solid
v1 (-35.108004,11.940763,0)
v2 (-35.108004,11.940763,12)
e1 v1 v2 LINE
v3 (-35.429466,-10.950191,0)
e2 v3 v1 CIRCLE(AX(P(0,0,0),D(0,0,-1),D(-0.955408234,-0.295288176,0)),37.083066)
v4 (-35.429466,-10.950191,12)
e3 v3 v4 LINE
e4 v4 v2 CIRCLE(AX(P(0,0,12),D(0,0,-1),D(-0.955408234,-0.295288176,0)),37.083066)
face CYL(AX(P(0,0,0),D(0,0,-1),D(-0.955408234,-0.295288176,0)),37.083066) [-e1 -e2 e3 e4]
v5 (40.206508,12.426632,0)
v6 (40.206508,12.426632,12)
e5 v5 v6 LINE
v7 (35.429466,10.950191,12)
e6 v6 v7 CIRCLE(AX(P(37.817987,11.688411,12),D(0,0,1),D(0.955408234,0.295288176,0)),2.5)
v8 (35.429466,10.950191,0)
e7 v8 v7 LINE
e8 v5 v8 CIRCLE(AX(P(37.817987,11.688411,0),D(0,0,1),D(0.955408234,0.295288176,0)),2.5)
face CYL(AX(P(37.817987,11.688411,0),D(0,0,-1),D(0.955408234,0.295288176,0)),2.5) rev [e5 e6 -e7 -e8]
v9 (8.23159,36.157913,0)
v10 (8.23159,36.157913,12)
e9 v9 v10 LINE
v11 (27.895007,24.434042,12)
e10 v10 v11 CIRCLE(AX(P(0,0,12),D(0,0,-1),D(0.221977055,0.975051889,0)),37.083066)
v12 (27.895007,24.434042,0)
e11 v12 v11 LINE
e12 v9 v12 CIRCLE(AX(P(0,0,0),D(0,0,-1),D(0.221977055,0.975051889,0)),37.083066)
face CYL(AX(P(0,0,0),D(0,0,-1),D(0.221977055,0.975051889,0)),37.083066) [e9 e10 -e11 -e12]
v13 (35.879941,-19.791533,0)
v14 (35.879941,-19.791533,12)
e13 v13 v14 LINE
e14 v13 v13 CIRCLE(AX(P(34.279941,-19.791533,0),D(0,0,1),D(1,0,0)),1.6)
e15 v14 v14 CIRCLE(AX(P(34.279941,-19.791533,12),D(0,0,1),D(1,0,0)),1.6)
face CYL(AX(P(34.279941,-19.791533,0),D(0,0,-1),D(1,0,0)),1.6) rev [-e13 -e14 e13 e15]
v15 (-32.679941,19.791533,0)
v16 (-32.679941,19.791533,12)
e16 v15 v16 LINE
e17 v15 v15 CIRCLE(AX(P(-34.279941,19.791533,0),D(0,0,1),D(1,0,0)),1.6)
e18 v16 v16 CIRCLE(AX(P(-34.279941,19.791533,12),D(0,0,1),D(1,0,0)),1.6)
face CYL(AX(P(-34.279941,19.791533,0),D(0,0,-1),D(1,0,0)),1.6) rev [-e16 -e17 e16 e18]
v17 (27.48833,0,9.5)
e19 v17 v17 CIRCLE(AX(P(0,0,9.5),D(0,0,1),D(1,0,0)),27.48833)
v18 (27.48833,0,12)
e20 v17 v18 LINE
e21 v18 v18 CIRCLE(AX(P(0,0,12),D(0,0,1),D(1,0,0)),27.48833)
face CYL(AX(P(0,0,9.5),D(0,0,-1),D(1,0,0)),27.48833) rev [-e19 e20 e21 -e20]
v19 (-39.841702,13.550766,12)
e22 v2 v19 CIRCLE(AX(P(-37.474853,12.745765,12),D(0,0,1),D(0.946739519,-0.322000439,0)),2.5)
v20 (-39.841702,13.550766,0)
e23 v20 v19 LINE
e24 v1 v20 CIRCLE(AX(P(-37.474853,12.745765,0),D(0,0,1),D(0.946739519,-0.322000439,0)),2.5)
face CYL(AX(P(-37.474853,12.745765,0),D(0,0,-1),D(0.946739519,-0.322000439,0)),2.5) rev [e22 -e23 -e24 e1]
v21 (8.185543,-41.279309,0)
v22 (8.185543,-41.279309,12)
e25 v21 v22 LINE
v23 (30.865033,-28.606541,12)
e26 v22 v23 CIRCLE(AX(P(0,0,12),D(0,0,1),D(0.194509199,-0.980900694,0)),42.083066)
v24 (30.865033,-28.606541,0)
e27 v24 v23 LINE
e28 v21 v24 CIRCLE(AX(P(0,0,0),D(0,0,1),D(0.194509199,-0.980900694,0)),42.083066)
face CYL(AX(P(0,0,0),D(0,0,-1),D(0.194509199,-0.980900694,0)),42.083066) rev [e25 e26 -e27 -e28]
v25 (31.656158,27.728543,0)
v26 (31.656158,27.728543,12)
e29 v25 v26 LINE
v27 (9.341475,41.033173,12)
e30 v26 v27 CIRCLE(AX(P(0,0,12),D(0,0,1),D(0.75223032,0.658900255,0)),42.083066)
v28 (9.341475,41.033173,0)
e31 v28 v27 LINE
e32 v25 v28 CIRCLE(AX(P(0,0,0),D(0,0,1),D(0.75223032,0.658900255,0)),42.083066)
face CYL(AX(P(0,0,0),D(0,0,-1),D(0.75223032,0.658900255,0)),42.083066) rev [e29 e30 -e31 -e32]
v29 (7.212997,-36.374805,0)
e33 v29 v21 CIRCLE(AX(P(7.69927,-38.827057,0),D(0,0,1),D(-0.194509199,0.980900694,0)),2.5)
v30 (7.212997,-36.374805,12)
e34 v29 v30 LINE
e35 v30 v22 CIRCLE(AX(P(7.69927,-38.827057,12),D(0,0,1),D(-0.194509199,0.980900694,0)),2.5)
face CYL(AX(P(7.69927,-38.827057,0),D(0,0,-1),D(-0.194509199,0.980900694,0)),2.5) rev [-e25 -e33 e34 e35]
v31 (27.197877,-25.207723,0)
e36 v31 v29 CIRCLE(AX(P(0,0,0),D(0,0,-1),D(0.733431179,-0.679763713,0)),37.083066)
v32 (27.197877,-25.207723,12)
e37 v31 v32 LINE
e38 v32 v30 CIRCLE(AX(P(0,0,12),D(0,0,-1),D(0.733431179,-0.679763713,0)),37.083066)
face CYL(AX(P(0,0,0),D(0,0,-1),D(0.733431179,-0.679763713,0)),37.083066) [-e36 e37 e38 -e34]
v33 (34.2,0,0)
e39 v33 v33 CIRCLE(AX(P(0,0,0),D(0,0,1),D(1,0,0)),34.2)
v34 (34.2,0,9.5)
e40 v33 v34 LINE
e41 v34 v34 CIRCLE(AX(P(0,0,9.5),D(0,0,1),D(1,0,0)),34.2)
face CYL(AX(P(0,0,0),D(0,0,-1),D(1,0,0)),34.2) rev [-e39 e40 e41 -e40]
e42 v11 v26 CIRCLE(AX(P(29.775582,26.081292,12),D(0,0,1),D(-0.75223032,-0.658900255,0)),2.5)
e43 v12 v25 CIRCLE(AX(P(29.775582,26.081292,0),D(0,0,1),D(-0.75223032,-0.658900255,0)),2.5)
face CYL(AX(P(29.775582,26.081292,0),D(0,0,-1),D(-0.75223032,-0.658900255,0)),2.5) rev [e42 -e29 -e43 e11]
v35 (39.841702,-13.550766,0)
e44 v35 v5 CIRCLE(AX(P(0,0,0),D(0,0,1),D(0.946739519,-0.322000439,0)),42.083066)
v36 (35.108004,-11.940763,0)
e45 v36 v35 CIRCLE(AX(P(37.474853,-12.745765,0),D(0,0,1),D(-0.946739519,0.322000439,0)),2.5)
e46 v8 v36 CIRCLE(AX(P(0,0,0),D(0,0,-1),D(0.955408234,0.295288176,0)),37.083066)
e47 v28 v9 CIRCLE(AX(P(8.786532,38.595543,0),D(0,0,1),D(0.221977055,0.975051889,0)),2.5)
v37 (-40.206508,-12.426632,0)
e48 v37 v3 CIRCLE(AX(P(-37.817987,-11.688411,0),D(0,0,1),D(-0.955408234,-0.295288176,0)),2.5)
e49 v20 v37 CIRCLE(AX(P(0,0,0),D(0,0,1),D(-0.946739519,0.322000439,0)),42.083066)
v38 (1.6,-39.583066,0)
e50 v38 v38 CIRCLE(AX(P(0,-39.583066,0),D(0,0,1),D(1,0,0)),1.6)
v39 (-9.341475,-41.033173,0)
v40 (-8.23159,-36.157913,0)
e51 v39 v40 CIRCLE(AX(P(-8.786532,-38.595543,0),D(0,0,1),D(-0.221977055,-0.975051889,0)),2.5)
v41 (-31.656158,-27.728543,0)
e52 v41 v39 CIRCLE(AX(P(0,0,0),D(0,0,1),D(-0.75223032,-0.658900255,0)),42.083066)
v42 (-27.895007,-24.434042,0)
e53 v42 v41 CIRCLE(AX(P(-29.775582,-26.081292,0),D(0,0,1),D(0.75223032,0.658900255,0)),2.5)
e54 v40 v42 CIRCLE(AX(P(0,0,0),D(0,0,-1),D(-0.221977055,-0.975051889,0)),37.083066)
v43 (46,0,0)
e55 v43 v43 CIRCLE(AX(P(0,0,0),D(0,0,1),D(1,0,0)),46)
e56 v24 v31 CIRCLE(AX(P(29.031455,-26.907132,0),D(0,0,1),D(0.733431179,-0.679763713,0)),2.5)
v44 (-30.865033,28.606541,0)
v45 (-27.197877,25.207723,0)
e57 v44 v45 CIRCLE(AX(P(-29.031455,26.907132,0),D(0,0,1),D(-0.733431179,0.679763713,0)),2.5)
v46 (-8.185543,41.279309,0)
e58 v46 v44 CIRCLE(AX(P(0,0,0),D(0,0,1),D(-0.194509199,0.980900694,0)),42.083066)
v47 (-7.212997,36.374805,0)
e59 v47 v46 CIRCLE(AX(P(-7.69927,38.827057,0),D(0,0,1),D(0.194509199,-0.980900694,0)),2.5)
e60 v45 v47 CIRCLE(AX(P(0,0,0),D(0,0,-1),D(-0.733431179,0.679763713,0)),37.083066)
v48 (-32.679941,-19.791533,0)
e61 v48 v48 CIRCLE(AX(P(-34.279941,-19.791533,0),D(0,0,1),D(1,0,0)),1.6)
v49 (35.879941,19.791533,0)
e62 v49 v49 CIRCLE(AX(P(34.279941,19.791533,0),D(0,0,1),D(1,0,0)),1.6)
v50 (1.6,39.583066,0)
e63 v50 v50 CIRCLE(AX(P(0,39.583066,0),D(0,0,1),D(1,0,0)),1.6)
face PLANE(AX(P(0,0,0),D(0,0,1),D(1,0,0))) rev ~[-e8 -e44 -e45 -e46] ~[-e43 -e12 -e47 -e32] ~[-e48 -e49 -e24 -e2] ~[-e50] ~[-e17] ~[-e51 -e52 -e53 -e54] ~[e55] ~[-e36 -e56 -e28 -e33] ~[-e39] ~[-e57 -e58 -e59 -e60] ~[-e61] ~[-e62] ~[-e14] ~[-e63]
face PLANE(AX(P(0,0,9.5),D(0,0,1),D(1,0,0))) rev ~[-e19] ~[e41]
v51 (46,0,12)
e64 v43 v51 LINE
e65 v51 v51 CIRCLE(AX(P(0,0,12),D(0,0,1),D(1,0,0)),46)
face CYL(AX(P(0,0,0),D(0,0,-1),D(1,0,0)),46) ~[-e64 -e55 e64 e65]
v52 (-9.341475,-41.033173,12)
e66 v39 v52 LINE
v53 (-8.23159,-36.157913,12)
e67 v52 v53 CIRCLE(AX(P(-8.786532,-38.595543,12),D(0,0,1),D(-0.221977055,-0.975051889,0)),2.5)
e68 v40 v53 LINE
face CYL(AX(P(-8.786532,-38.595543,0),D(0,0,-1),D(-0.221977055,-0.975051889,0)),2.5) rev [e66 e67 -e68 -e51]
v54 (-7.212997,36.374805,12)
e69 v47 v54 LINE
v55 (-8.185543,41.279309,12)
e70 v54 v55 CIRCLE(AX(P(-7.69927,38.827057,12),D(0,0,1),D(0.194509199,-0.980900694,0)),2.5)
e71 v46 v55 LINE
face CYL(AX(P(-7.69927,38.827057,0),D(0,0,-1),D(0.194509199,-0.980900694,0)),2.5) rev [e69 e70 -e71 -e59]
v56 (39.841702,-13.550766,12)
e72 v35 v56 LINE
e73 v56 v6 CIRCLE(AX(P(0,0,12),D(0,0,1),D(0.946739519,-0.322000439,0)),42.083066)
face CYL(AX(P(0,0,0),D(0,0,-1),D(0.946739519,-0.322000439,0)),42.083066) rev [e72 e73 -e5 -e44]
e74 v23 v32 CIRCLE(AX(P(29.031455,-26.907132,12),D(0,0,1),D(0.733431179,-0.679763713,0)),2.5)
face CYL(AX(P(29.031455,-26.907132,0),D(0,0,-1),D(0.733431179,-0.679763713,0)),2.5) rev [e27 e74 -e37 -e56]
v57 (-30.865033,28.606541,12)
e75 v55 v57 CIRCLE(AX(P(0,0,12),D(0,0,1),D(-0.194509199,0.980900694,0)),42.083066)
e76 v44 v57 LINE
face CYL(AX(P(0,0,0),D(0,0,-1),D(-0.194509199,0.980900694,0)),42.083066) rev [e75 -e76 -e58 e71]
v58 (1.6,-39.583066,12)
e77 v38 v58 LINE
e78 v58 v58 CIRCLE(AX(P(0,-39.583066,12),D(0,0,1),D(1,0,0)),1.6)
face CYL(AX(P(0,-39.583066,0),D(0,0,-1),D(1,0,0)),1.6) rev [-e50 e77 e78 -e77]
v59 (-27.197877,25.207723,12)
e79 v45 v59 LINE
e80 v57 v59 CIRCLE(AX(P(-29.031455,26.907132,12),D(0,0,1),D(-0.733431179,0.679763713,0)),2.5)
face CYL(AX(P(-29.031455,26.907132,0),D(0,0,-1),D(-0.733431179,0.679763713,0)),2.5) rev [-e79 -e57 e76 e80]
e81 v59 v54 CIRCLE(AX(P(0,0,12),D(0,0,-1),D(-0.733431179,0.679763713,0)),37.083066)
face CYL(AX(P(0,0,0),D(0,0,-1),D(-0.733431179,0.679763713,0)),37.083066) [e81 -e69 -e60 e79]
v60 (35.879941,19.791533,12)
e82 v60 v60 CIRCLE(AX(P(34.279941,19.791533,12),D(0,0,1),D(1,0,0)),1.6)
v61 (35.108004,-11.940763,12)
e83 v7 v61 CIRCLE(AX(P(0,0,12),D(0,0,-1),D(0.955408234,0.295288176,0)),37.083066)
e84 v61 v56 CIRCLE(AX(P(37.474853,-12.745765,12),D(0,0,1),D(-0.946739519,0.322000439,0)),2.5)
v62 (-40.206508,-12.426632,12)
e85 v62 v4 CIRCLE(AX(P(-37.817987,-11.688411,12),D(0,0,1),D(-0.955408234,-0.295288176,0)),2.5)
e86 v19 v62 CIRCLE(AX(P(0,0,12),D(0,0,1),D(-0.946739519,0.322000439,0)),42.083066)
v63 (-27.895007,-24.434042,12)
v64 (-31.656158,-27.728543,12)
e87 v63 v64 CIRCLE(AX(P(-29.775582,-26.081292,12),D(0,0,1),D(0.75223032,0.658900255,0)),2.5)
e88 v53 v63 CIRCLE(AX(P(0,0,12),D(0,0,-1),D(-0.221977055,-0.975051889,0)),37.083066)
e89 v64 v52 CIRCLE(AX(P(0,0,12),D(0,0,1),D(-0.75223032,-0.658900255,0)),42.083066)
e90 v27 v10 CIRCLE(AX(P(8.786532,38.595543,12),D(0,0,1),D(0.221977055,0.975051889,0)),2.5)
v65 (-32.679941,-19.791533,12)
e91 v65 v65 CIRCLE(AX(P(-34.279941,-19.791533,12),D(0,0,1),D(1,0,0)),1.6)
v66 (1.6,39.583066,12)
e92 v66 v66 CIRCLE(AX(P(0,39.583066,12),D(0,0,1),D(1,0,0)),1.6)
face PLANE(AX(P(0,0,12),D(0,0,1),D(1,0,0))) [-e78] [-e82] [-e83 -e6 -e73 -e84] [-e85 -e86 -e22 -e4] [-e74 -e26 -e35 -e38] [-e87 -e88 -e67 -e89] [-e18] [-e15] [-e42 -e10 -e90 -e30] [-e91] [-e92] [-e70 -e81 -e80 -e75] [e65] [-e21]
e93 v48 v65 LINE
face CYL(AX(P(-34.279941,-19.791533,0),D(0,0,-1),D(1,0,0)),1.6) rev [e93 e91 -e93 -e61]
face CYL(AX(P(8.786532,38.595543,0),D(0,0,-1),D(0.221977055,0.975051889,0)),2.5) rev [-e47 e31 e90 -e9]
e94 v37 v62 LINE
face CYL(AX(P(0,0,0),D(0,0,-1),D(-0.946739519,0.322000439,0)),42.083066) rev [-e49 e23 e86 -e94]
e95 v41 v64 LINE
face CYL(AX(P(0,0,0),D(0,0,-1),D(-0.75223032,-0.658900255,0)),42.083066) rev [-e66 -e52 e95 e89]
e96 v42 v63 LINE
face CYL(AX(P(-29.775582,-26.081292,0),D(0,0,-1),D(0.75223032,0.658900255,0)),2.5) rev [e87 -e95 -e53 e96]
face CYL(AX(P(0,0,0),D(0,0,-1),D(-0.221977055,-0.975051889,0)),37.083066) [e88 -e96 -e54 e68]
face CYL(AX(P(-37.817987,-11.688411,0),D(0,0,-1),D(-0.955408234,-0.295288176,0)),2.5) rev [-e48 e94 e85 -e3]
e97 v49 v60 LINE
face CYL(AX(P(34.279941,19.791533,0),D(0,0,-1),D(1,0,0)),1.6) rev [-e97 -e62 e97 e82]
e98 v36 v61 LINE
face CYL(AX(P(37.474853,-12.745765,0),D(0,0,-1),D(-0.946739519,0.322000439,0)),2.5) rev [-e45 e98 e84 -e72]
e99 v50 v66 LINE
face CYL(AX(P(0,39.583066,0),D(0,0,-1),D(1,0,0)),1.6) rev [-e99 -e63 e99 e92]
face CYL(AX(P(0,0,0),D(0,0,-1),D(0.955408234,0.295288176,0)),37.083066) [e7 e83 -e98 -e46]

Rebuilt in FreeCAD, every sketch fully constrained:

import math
import FreeCAD as App
import Part
import Sketcher

doc = App.newDocument("Part")
body = doc.addObject("PartDesign::Body", "Body")

# Sketch on XY plane
sketch1 = body.newObject("Sketcher::SketchObject", "Sketch")
sketch1.AttachmentSupport = (doc.getObject("XY_Plane"), [""])
sketch1.MapMode = "FlatFace"
sketch1.addGeometry([
    Part.Circle(App.Vector(0, 0, 0), App.Vector(0, 0, 1), 46),  # 0
    Part.ArcOfCircle(Part.Circle(App.Vector(0, 0, 0), App.Vector(0, 0, 1), 42.083066), math.radians(-138.783946), math.radians(-102.825182)),  # 1
    Part.ArcOfCircle(Part.Circle(App.Vector(-29.775582, -26.081292, 0), App.Vector(0, 0, 1), 2.5), math.radians(41.216054), math.radians(221.216054)),  # 2
    Part.ArcOfCircle(Part.Circle(App.Vector(0, 0, 0), App.Vector(0, 0, 1), 37.083066), math.radians(-138.783946), math.radians(-102.825182)),  # 3
    Part.ArcOfCircle(Part.Circle(App.Vector(-8.786532, -38.595543, 0), App.Vector(0, 0, 1), 2.5), math.radians(-102.825182), math.radians(77.174818)),  # 4
    Part.Circle(App.Vector(0, -39.583066, 0), App.Vector(0, 0, 1), 1.6),  # 5
    Part.Circle(App.Vector(-34.279941, -19.791533, 0), App.Vector(0, 0, 1), 1.6),  # 6
    Part.ArcOfCircle(Part.Circle(App.Vector(0, 0, 0), App.Vector(0, 0, 1), 42.083066), math.radians(-78.783946), math.radians(-42.825182)),  # 7
    Part.ArcOfCircle(Part.Circle(App.Vector(7.69927, -38.827057, 0), App.Vector(0, 0, 1), 2.5), math.radians(101.216054), math.radians(281.216054)),  # 8
    Part.ArcOfCircle(Part.Circle(App.Vector(0, 0, 0), App.Vector(0, 0, 1), 37.083066), math.radians(-78.783946), math.radians(-42.825182)),  # 9
    Part.ArcOfCircle(Part.Circle(App.Vector(29.031455, -26.907132, 0), App.Vector(0, 0, 1), 2.5), math.radians(-42.825182), math.radians(137.174818)),  # 10
    Part.Circle(App.Vector(34.279941, -19.791533, 0), App.Vector(0, 0, 1), 1.6),  # 11
    Part.ArcOfCircle(Part.Circle(App.Vector(0, 0, 0), App.Vector(0, 0, 1), 42.083066), math.radians(-18.783946), math.radians(17.174818)),  # 12
    Part.ArcOfCircle(Part.Circle(App.Vector(37.474853, -12.745765, 0), App.Vector(0, 0, 1), 2.5), math.radians(161.216054), math.radians(341.216054)),  # 13
    Part.ArcOfCircle(Part.Circle(App.Vector(0, 0, 0), App.Vector(0, 0, 1), 37.083066), math.radians(-18.783946), math.radians(17.174818)),  # 14
    Part.ArcOfCircle(Part.Circle(App.Vector(37.817987, 11.688411, 0), App.Vector(0, 0, 1), 2.5), math.radians(17.174818), math.radians(197.174818)),  # 15
    Part.ArcOfCircle(Part.Circle(App.Vector(0, 0, 0), App.Vector(0, 0, 1), 42.083066), math.radians(161.216054), math.radians(197.174818)),  # 16
    Part.ArcOfCircle(Part.Circle(App.Vector(-37.474853, 12.745765, 0), App.Vector(0, 0, 1), 2.5), math.radians(-18.783946), math.radians(161.216054)),  # 17
    Part.ArcOfCircle(Part.Circle(App.Vector(0, 0, 0), App.Vector(0, 0, 1), 37.083066), math.radians(161.216054), math.radians(197.174818)),  # 18
    Part.ArcOfCircle(Part.Circle(App.Vector(-37.817987, -11.688411, 0), App.Vector(0, 0, 1), 2.5), math.radians(-162.825182), math.radians(17.174818)),  # 19
    Part.Circle(App.Vector(-34.279941, 19.791533, 0), App.Vector(0, 0, 1), 1.6),  # 20
    Part.Circle(App.Vector(0, 0, 0), App.Vector(0, 0, 1), 34.2),  # 21
    Part.ArcOfCircle(Part.Circle(App.Vector(0, 0, 0), App.Vector(0, 0, 1), 42.083066), math.radians(101.216054), math.radians(137.174818)),  # 22
    Part.ArcOfCircle(Part.Circle(App.Vector(-7.69927, 38.827057, 0), App.Vector(0, 0, 1), 2.5), math.radians(-78.783946), math.radians(101.216054)),  # 23
    Part.ArcOfCircle(Part.Circle(App.Vector(0, 0, 0), App.Vector(0, 0, 1), 37.083066), math.radians(101.216054), math.radians(137.174818)),  # 24
    Part.ArcOfCircle(Part.Circle(App.Vector(-29.031455, 26.907132, 0), App.Vector(0, 0, 1), 2.5), math.radians(137.174818), math.radians(317.174818)),  # 25
    Part.Circle(App.Vector(0, 39.583066, 0), App.Vector(0, 0, 1), 1.6),  # 26
    Part.Circle(App.Vector(34.279941, 19.791533, 0), App.Vector(0, 0, 1), 1.6),  # 27
    Part.ArcOfCircle(Part.Circle(App.Vector(0, 0, 0), App.Vector(0, 0, 1), 42.083066), math.radians(41.216054), math.radians(77.174818)),  # 28
    Part.ArcOfCircle(Part.Circle(App.Vector(29.775582, 26.081292, 0), App.Vector(0, 0, 1), 2.5), math.radians(-138.783946), math.radians(41.216054)),  # 29
    Part.ArcOfCircle(Part.Circle(App.Vector(0, 0, 0), App.Vector(0, 0, 1), 37.083066), math.radians(41.216054), math.radians(77.174818)),  # 30
    Part.ArcOfCircle(Part.Circle(App.Vector(8.786532, 38.595543, 0), App.Vector(0, 0, 1), 2.5), math.radians(77.174818), math.radians(257.174818)),  # 31
], False)
sketch1.addConstraint([
    Sketcher.Constraint("Coincident", 1, 1, 2, 2),
    Sketcher.Constraint("Coincident", 2, 1, 3, 1),
    Sketcher.Constraint("Coincident", 3, 2, 4, 2),
    Sketcher.Constraint("Coincident", 4, 1, 1, 2),
    Sketcher.Constraint("Coincident", 7, 1, 8, 2),
    Sketcher.Constraint("Coincident", 8, 1, 9, 1),
    Sketcher.Constraint("Coincident", 9, 2, 10, 2),
    Sketcher.Constraint("Coincident", 10, 1, 7, 2),
    Sketcher.Constraint("Coincident", 12, 1, 13, 2),
    Sketcher.Constraint("Coincident", 13, 1, 14, 1),
    Sketcher.Constraint("Coincident", 14, 2, 15, 2),
    Sketcher.Constraint("Coincident", 15, 1, 12, 2),
    Sketcher.Constraint("Coincident", 16, 1, 17, 2),
    Sketcher.Constraint("Coincident", 17, 1, 18, 1),
    Sketcher.Constraint("Coincident", 18, 2, 19, 2),
    Sketcher.Constraint("Coincident", 19, 1, 16, 2),
    Sketcher.Constraint("Coincident", 22, 1, 23, 2),
    Sketcher.Constraint("Coincident", 23, 1, 24, 1),
    Sketcher.Constraint("Coincident", 24, 2, 25, 2),
    Sketcher.Constraint("Coincident", 25, 1, 22, 2),
    Sketcher.Constraint("Coincident", 28, 1, 29, 2),
    Sketcher.Constraint("Coincident", 29, 1, 30, 1),
    Sketcher.Constraint("Coincident", 30, 2, 31, 2),
    Sketcher.Constraint("Coincident", 31, 1, 28, 2),
    Sketcher.Constraint("Coincident", 0, 3, -1, 1),
    Sketcher.Constraint("Coincident", 1, 3, -1, 1),
    Sketcher.Constraint("Coincident", 3, 3, -1, 1),
    Sketcher.Constraint("Coincident", 7, 3, -1, 1),
    Sketcher.Constraint("Coincident", 9, 3, -1, 1),
    Sketcher.Constraint("Coincident", 12, 3, -1, 1),
    Sketcher.Constraint("Coincident", 14, 3, -1, 1),
    Sketcher.Constraint("Coincident", 16, 3, -1, 1),
    Sketcher.Constraint("Coincident", 18, 3, -1, 1),
    Sketcher.Constraint("Coincident", 21, 3, -1, 1),
    Sketcher.Constraint("Coincident", 22, 3, -1, 1),
    Sketcher.Constraint("Coincident", 24, 3, -1, 1),
    Sketcher.Constraint("Coincident", 28, 3, -1, 1),
    Sketcher.Constraint("Coincident", 30, 3, -1, 1),
    Sketcher.Constraint("PointOnObject", 5, 3, -2),
    Sketcher.Constraint("PointOnObject", 26, 3, -2),
    Sketcher.Constraint("Diameter", 0, 92.0),
    Sketcher.Constraint("Diameter", 5, 3.2),
    Sketcher.Constraint("Diameter", 6, 3.2),
    Sketcher.Constraint("Diameter", 11, 3.2),
    Sketcher.Constraint("Diameter", 20, 3.2),
    Sketcher.Constraint("Diameter", 21, 68.4),
    Sketcher.Constraint("Diameter", 26, 3.2),
    Sketcher.Constraint("Diameter", 27, 3.2),
    Sketcher.Constraint("Radius", 2, 2.5),
    Sketcher.Constraint("Radius", 8, 2.5),
    Sketcher.Constraint("Radius", 13, 2.5),
    Sketcher.Constraint("Radius", 17, 2.5),
    Sketcher.Constraint("Radius", 23, 2.5),
    Sketcher.Constraint("Radius", 29, 2.5),
    Sketcher.Constraint("Radius", 1, 42.083066),
    Sketcher.Constraint("Radius", 7, 42.083066),
    Sketcher.Constraint("Radius", 12, 42.083066),
    Sketcher.Constraint("Radius", 16, 42.083066),
    Sketcher.Constraint("Radius", 22, 42.083066),
    Sketcher.Constraint("Radius", 28, 42.083066),
    Sketcher.Constraint("DistanceY", 4, 3, 1, 1, 10.867),
    Sketcher.Constraint("DistanceY", 12, 1, 13, 3, 0.805001),
    Sketcher.Constraint("DistanceY", 13, 3, 13, 1, 0.805001),
    Sketcher.Constraint("DistanceY", 17, 3, 16, 1, 0.805001),
    Sketcher.Constraint("DistanceY", 17, 1, 17, 3, 0.805001),
    Sketcher.Constraint("DistanceX", -1, 1, 12, 1, 39.841702),
    Sketcher.Constraint("DistanceX", 16, 1, -1, 1, 39.841702),
    Sketcher.Constraint("DistanceY", 10, 3, 11, 3, 7.115599),
    Sketcher.Constraint("DistanceX", 10, 3, 13, 3, 8.443398),
    Sketcher.Constraint("DistanceY", 20, 3, 25, 3, 7.115599),
    Sketcher.Constraint("DistanceX", 17, 3, 25, 3, 8.443398),
    Sketcher.Constraint("DistanceY", 1, 1, 2, 1, 3.294501),
    Sketcher.Constraint("DistanceY", 14, 2, 29, 3, 15.131101),
    Sketcher.Constraint("DistanceY", 15, 1, 27, 3, 7.364901),
    Sketcher.Constraint("DistanceY", 6, 3, 16, 1, 33.342299),
    Sketcher.Constraint("DistanceY", 2, 3, 18, 2, 15.131101),
    Sketcher.Constraint("DistanceY", 6, 3, 19, 1, 7.364901),
    Sketcher.Constraint("DistanceX", 19, 1, 2, 1, 12.311501),
    Sketcher.Constraint("DistanceY", 29, 1, 28, 1, 3.294501),
    Sketcher.Constraint("DistanceX", 6, 3, -1, 1, 34.279941),
    Sketcher.Constraint("DistanceX", -1, 1, 8, 3, 7.69927),
    Sketcher.Constraint("DistanceX", -1, 1, 11, 3, 34.279941),
    Sketcher.Constraint("DistanceY", -1, 1, 15, 3, 11.688411),
    Sketcher.Constraint("DistanceY", 19, 3, -1, 1, 11.688411),
    Sketcher.Constraint("DistanceX", 20, 3, -1, 1, 34.279941),
    Sketcher.Constraint("DistanceX", 23, 3, -1, 1, 7.69927),
    Sketcher.Constraint("DistanceX", -1, 1, 27, 3, 34.279941),
    Sketcher.Constraint("DistanceX", 3, 2, -1, 1, 8.23159),
    Sketcher.Constraint("DistanceY", 7, 1, -1, 1, 41.279309),
    Sketcher.Constraint("DistanceY", 10, 1, -1, 1, 28.606541),
    Sketcher.Constraint("DistanceY", -1, 1, 14, 2, 10.950191),
    Sketcher.Constraint("DistanceY", -1, 1, 15, 1, 12.426632),
    Sketcher.Constraint("DistanceY", 18, 2, -1, 1, 10.950191),
    Sketcher.Constraint("DistanceY", -1, 1, 22, 1, 41.279309),
    Sketcher.Constraint("DistanceY", -1, 1, 25, 1, 28.606541),
    Sketcher.Constraint("DistanceX", -1, 1, 28, 1, 31.656158),
    Sketcher.Constraint("DistanceX", -1, 1, 30, 2, 8.23159),
    Sketcher.Constraint("DistanceY", 5, 3, 8, 3, 0.756009),
    Sketcher.Constraint("DistanceY", 23, 3, 26, 3, 0.756009),
    Sketcher.Constraint("DistanceX", 31, 3, 29, 3, 20.98905),
    Sketcher.Constraint("DistanceY", 4, 1, 4, 3, 2.43763),
    Sketcher.Constraint("DistanceY", 8, 3, 8, 1, 2.452252),
    Sketcher.Constraint("DistanceY", 10, 3, 9, 2, 1.699409),
    Sketcher.Constraint("DistanceY", 23, 1, 23, 3, 2.452252),
    Sketcher.Constraint("DistanceY", 24, 2, 25, 3, 1.699409),
    Sketcher.Constraint("DistanceY", 31, 3, 31, 1, 2.43763),
])
pad1 = body.newObject("PartDesign::Pad", "Pad")
pad1.Profile = sketch1
pad1.Length = 12

# Sketch on XY plane
sketch2 = body.newObject("Sketcher::SketchObject", "Sketch001")
sketch2.AttachmentSupport = (doc.getObject("XY_Plane"), [""])
sketch2.MapMode = "FlatFace"
sketch2.AttachmentOffset = App.Placement(App.Vector(0, 0, 9.5), App.Rotation())
sketch2.addGeometry([
    Part.Circle(App.Vector(0, 0, 0), App.Vector(0, 0, 1), 34),
    Part.Circle(App.Vector(0, 0, 0), App.Vector(0, 0, 1), 27),
], False)
sketch2.addConstraint([
    Sketcher.Constraint("Coincident", 0, 3, -1, 1),
    Sketcher.Constraint("Coincident", 1, 3, -1, 1),
    Sketcher.Constraint("Diameter", 0, 68.4),
    Sketcher.Constraint("Diameter", 1, 54.976661),
])
pad2 = body.newObject("PartDesign::Pad", "Pad001")
pad2.Profile = sketch2
pad2.Length = 2.5

doc.recompute()
